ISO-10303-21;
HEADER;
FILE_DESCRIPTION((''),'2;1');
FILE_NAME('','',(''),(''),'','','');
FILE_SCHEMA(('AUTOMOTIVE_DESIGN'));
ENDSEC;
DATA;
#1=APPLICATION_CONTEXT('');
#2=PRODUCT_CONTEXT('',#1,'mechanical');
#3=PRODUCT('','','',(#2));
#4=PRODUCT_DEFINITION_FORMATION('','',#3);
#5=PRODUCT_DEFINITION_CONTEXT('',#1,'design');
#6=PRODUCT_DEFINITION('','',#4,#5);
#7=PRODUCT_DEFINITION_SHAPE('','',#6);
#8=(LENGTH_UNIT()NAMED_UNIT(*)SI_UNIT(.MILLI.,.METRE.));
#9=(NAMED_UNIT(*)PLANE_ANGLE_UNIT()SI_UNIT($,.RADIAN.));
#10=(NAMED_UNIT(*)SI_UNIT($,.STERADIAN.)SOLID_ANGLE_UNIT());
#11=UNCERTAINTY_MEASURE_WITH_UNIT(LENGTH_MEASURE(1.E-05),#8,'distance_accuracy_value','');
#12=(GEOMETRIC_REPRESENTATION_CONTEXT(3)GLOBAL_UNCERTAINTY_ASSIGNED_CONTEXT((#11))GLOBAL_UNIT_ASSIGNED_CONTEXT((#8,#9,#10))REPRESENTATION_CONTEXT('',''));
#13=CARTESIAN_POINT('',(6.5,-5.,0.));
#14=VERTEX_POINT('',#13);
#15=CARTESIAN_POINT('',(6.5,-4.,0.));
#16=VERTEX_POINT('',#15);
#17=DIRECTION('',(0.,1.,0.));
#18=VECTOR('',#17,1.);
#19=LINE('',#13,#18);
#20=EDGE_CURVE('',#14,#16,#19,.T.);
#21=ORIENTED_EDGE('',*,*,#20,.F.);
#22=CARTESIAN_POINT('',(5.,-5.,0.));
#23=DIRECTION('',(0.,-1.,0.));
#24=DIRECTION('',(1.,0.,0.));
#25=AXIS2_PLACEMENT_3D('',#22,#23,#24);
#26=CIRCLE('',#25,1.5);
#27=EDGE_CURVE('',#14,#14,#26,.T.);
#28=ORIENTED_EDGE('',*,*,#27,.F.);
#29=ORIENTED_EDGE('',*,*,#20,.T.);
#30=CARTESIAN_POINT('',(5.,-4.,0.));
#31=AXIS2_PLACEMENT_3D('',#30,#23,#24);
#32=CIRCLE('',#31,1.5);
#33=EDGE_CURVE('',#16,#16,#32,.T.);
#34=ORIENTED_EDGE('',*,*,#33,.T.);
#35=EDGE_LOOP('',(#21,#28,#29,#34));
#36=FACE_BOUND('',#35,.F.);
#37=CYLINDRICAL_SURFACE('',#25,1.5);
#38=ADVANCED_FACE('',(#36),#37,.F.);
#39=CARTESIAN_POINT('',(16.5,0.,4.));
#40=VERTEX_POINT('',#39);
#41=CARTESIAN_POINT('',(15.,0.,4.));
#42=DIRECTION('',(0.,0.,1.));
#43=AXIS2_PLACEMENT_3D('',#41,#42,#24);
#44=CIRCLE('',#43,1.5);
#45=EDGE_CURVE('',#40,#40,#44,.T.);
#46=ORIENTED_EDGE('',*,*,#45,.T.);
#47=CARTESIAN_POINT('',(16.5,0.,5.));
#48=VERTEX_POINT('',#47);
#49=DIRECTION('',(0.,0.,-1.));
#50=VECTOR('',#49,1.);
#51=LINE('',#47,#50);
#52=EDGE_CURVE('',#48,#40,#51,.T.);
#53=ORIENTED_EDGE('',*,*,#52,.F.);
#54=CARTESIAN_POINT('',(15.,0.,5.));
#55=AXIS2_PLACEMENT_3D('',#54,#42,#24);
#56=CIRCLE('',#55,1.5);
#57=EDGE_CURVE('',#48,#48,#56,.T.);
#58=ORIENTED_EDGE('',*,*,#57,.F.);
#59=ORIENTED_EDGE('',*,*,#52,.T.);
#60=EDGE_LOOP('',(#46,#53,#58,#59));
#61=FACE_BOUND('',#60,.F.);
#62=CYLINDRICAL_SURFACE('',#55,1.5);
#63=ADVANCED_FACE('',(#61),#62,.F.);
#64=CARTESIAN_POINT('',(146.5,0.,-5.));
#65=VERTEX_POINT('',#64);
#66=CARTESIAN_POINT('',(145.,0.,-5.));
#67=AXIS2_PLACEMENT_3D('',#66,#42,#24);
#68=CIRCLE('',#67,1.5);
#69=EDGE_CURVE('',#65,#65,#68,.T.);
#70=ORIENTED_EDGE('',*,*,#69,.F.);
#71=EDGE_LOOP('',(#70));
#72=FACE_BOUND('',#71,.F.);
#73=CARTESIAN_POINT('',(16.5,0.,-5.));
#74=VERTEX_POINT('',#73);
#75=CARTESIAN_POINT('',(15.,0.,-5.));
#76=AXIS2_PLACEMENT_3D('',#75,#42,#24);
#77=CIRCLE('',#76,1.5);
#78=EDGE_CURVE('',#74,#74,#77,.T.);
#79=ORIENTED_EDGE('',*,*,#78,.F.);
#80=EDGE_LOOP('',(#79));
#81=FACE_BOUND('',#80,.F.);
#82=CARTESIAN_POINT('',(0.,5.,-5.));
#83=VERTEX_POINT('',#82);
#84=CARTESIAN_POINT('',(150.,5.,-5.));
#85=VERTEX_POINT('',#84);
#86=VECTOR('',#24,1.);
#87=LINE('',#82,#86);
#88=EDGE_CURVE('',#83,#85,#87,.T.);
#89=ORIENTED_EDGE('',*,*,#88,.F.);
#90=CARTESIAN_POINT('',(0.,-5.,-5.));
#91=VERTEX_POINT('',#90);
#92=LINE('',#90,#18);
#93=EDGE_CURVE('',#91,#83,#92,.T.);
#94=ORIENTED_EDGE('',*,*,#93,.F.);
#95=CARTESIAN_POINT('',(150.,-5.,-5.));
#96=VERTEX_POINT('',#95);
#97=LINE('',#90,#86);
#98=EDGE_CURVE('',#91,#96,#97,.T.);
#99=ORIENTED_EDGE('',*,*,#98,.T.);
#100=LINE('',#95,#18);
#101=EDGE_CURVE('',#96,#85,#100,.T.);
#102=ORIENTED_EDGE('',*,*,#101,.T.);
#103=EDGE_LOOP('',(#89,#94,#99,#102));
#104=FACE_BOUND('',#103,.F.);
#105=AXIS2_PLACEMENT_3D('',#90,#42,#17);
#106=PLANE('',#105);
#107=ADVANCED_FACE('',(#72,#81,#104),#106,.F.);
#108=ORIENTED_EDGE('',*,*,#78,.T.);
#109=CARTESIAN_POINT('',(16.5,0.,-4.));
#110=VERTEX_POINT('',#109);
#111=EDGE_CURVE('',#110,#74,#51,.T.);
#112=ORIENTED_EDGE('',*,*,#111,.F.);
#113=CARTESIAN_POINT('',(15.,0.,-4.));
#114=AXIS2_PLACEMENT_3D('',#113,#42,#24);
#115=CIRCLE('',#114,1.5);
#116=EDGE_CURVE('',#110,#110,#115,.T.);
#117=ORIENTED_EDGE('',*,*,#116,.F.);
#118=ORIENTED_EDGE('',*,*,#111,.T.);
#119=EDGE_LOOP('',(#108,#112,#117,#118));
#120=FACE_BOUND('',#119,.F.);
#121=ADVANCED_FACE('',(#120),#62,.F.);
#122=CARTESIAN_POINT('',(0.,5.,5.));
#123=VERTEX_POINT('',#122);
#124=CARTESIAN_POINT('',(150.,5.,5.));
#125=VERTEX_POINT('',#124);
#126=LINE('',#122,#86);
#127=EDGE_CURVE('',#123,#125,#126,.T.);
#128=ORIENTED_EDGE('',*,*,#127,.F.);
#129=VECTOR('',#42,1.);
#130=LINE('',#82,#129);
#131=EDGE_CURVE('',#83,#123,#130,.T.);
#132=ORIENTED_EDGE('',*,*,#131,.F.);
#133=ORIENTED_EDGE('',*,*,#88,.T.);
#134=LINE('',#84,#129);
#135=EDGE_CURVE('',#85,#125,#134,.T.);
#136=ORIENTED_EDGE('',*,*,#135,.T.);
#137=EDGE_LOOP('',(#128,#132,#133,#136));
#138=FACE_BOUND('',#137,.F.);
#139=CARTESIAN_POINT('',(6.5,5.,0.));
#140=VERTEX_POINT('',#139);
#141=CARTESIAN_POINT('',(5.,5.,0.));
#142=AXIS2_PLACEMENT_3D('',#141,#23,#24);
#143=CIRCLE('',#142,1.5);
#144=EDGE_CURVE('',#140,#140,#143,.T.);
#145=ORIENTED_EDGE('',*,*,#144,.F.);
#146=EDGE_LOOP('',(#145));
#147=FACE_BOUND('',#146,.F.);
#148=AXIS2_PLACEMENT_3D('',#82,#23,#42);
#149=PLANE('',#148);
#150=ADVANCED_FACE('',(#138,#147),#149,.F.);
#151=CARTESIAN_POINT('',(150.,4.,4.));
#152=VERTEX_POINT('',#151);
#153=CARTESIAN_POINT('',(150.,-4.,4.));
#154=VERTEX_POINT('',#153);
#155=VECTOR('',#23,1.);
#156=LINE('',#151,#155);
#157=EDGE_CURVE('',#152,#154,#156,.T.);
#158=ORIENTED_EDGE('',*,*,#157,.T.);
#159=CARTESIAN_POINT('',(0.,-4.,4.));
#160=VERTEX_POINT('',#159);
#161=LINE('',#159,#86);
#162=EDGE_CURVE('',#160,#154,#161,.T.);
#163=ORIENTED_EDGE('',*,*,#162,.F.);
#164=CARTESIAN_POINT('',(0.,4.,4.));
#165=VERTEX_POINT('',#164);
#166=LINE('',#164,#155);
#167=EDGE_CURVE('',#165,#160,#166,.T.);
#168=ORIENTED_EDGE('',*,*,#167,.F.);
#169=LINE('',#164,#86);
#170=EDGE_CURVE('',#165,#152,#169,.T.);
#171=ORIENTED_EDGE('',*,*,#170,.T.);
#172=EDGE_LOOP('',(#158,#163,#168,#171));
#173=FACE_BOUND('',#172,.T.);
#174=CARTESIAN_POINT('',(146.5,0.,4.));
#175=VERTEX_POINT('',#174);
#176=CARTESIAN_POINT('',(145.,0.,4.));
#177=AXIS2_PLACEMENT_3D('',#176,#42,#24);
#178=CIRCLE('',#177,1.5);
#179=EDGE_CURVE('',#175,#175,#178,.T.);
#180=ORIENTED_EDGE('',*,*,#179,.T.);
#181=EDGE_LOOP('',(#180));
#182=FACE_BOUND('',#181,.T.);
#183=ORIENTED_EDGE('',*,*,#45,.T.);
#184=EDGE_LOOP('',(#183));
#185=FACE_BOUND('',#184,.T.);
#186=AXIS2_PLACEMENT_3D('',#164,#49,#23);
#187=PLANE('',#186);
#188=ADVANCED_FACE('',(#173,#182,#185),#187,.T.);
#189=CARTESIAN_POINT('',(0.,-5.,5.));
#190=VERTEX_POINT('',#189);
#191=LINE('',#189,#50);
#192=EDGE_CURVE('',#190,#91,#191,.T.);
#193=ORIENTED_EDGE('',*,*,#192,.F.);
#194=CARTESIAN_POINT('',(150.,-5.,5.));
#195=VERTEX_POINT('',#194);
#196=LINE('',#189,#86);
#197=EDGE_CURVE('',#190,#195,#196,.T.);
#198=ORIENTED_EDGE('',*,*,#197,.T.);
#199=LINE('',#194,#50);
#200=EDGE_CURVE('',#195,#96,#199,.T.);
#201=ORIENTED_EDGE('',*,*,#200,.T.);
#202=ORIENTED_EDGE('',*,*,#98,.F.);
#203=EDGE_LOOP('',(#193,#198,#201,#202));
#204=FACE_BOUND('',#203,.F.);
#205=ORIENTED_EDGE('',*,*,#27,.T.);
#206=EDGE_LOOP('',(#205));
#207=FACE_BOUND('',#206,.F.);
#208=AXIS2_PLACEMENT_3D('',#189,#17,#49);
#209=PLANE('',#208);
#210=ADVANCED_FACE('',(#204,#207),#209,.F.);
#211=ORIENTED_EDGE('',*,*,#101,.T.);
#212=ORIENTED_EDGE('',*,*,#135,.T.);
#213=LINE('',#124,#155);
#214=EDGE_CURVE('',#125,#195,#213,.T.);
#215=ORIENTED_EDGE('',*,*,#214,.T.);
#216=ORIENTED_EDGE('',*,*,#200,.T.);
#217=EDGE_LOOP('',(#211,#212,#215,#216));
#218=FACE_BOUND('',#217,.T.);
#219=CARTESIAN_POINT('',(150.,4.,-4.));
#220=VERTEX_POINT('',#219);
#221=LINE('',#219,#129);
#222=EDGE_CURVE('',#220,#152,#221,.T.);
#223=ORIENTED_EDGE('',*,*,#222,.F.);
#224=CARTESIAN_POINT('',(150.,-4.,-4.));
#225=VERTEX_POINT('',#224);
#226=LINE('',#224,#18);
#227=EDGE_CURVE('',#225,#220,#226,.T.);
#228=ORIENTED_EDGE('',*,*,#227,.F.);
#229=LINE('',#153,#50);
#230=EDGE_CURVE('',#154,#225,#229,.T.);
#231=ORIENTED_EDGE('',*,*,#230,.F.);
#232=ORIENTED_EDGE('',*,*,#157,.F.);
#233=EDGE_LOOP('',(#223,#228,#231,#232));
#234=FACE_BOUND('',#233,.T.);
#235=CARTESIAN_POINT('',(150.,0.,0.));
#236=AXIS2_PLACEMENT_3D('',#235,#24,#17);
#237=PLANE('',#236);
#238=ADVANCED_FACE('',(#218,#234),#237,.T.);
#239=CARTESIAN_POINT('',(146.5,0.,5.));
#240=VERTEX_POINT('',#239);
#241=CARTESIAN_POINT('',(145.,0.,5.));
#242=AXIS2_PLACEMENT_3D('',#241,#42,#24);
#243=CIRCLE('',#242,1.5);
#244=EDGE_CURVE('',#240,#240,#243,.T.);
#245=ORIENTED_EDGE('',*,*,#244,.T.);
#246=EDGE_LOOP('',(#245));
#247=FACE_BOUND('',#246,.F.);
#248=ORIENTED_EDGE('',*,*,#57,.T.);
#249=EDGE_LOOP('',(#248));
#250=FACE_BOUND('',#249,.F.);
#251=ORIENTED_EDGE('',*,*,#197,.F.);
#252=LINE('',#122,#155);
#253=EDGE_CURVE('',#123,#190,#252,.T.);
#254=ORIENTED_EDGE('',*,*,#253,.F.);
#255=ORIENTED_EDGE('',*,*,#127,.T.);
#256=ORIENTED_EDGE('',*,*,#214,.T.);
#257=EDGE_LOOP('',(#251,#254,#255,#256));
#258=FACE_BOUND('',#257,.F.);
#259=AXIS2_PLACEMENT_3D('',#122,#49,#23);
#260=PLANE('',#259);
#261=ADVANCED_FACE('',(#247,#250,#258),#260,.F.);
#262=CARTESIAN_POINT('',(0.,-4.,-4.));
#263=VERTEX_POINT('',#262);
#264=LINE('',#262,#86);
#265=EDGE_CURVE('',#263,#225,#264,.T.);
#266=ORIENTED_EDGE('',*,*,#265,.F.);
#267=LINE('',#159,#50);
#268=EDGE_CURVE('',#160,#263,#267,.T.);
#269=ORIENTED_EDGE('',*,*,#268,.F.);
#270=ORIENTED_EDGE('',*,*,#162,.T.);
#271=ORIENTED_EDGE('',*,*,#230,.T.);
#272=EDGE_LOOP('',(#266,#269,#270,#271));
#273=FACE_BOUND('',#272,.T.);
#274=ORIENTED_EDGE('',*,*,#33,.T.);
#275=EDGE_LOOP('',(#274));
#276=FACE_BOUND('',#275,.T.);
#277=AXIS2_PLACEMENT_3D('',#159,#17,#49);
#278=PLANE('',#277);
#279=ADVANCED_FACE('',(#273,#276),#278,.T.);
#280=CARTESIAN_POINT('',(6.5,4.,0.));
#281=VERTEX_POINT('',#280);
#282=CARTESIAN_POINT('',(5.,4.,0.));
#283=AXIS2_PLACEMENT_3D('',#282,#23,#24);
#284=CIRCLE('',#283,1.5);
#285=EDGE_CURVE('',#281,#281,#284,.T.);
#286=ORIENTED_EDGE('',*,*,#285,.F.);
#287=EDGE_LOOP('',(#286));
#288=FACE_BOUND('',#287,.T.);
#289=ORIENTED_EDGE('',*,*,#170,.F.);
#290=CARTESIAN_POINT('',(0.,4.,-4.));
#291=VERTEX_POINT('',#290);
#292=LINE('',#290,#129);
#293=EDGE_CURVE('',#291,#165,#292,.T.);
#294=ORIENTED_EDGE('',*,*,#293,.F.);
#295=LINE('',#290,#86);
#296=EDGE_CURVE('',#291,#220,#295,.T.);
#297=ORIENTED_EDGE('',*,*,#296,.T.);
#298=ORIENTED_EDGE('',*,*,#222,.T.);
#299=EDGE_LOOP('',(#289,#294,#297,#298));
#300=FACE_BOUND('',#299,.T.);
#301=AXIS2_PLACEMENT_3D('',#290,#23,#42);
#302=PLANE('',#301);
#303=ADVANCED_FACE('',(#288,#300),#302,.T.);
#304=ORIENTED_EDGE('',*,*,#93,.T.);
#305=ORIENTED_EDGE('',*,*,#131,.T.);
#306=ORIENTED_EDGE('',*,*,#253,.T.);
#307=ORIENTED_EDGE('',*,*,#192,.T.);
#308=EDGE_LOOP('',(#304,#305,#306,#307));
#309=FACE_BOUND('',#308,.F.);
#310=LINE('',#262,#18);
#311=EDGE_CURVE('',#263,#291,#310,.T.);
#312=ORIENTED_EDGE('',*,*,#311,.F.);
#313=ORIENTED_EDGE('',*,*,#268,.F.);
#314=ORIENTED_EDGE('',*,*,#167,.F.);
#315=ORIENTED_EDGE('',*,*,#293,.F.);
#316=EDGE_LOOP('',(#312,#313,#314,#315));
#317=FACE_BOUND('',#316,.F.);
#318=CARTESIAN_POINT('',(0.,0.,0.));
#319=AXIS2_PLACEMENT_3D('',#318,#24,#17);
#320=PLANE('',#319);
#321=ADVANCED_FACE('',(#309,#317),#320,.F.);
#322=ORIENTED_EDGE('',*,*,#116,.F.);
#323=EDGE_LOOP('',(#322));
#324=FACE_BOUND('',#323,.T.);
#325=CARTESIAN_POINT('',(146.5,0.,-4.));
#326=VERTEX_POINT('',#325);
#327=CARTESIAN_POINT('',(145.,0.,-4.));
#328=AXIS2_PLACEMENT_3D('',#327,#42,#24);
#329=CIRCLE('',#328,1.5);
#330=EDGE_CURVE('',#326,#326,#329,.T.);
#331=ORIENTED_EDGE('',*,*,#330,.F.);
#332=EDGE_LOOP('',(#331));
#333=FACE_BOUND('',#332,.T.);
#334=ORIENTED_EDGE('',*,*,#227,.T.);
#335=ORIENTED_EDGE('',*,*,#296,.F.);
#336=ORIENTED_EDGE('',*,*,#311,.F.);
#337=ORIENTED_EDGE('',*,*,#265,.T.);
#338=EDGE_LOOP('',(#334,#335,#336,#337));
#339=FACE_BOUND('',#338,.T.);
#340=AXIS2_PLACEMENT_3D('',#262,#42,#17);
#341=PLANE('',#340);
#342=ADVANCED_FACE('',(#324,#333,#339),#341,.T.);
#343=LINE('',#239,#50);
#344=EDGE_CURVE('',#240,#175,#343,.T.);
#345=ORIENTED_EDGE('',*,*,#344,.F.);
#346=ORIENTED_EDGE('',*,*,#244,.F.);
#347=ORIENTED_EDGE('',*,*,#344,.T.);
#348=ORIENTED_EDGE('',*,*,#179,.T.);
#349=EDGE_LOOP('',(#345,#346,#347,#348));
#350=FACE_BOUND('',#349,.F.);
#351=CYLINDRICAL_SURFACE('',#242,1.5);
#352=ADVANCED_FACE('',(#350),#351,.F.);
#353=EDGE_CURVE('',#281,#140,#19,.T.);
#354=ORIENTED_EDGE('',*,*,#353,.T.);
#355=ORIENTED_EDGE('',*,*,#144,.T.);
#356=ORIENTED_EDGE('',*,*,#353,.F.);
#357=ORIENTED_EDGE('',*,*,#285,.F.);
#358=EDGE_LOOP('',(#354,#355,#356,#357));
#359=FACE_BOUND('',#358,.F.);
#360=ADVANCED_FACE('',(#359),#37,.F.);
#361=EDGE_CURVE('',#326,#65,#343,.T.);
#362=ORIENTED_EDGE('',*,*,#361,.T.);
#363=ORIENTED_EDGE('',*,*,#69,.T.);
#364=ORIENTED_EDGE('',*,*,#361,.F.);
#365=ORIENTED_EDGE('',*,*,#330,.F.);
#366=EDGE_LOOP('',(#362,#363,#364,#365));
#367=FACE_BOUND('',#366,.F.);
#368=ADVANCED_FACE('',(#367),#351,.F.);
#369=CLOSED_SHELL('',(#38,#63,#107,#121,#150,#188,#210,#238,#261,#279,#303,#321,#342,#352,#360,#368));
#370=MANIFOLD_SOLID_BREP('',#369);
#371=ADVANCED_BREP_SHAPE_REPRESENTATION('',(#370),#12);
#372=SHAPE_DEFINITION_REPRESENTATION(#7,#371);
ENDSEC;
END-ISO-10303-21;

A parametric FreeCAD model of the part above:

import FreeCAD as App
import Part
import Sketcher

V = App.Vector

doc = App.newDocument("Part")
body = doc.addObject("PartDesign::Body", "Body")

# Sketch on YZ plane
sketch1 = doc.addObject("Sketcher::SketchObject", "Sketch")
body.addObject(sketch1)
sketch1.AttachmentSupport = (doc.YZ_Plane, [""])
sketch1.MapMode = "FlatFace"
sketch1.addGeometry([
    Part.LineSegment(V(5, -5, 0), V(5, 5, 0)),  # 0
    Part.LineSegment(V(5, 5, 0), V(-5, 5, 0)),  # 1
    Part.LineSegment(V(-5, 5, 0), V(-5, -5, 0)),  # 2
    Part.LineSegment(V(-5, -5, 0), V(5, -5, 0)),  # 3
    Part.LineSegment(V(-4, 4, 0), V(4, 4, 0)),  # 4
    Part.LineSegment(V(4, 4, 0), V(4, -4, 0)),  # 5
    Part.LineSegment(V(4, -4, 0), V(-4, -4, 0)),  # 6
    Part.LineSegment(V(-4, -4, 0), V(-4, 4, 0)),  # 7
], False)
sketch1.addConstraint([
    Sketcher.Constraint("Coincident", 0, 2, 1, 1),
    Sketcher.Constraint("Coincident", 1, 2, 2, 1),
    Sketcher.Constraint("Coincident", 2, 2, 3, 1),
    Sketcher.Constraint("Coincident", 3, 2, 0, 1),
    Sketcher.Constraint("Coincident", 4, 2, 5, 1),
    Sketcher.Constraint("Coincident", 5, 2, 6, 1),
    Sketcher.Constraint("Coincident", 6, 2, 7, 1),
    Sketcher.Constraint("Coincident", 7, 2, 4, 1),
    Sketcher.Constraint("Vertical", 0),
    Sketcher.Constraint("Horizontal", 1),
    Sketcher.Constraint("Vertical", 2),
    Sketcher.Constraint("Horizontal", 3),
    Sketcher.Constraint("Horizontal", 4),
    Sketcher.Constraint("Vertical", 5),
    Sketcher.Constraint("Horizontal", 6),
    Sketcher.Constraint("Vertical", 7),
    Sketcher.Constraint("Symmetric", 0, 2, 2, 2, -1, 1),
    Sketcher.Constraint("Symmetric", 4, 2, 6, 2, -1, 1),
    Sketcher.Constraint("Equal", 3, 0),
    Sketcher.Constraint("Equal", 6, 5),
    Sketcher.Constraint("DistanceX", 1, 2, 1, 1, 10.0),
    Sketcher.Constraint("DistanceX", 4, 2, 0, 2, 1.0),
])
pad1 = doc.addObject("PartDesign::Pad", "Pad")
body.addObject(pad1)
pad1.Profile = sketch1
pad1.Length = 150

# Sketch on XZ plane
sketch2 = doc.addObject("Sketcher::SketchObject", "Sketch001")
body.addObject(sketch2)
sketch2.AttachmentSupport = (doc.XZ_Plane, [""])
sketch2.MapMode = "FlatFace"
sketch2.AttachmentOffset = App.Placement(V(0, 0, 5), App.Rotation())
sketch2.addGeometry(Part.Circle(V(5, 0, 0), V(0, 0, 1), 1.5), False)
sketch2.addConstraint([
    Sketcher.Constraint("PointOnObject", 0, 3, -1),
    Sketcher.Constraint("Diameter", 0, 3.0),
    Sketcher.Constraint("DistanceX", -1, 1, 0, 3, 5.0),
])
pocket1 = doc.addObject("PartDesign::Pocket", "Pocket")
body.addObject(pocket1)
pocket1.Profile = sketch2
pocket1.Length = 15

# Sketch on XY plane
sketch3 = doc.addObject("Sketcher::SketchObject", "Sketch002")
body.addObject(sketch3)
sketch3.AttachmentSupport = (doc.XY_Plane, [""])
sketch3.MapMode = "FlatFace"
sketch3.AttachmentOffset = App.Placement(V(0, 0, 5), App.Rotation())
sketch3.addGeometry([
    Part.Circle(V(15, 0, 0), V(0, 0, 1), 1.5),
    Part.Circle(V(145, 0, 0), V(0, 0, 1), 1.5),
], False)
sketch3.addConstraint([
    Sketcher.Constraint("Equal", 0, 1),
    Sketcher.Constraint("PointOnObject", 0, 3, -1),
    Sketcher.Constraint("PointOnObject", 1, 3, -1),
    Sketcher.Constraint("Diameter", 0, 3.0),
    Sketcher.Constraint("DistanceX", -1, 1, 0, 3, 15.0),
    Sketcher.Constraint("DistanceX", -1, 1, 1, 3, 145.0),
])
pocket2 = doc.addObject("PartDesign::Pocket", "Pocket001")
body.addObject(pocket2)
pocket2.Profile = sketch3
pocket2.Length = 15

doc.recompute()
